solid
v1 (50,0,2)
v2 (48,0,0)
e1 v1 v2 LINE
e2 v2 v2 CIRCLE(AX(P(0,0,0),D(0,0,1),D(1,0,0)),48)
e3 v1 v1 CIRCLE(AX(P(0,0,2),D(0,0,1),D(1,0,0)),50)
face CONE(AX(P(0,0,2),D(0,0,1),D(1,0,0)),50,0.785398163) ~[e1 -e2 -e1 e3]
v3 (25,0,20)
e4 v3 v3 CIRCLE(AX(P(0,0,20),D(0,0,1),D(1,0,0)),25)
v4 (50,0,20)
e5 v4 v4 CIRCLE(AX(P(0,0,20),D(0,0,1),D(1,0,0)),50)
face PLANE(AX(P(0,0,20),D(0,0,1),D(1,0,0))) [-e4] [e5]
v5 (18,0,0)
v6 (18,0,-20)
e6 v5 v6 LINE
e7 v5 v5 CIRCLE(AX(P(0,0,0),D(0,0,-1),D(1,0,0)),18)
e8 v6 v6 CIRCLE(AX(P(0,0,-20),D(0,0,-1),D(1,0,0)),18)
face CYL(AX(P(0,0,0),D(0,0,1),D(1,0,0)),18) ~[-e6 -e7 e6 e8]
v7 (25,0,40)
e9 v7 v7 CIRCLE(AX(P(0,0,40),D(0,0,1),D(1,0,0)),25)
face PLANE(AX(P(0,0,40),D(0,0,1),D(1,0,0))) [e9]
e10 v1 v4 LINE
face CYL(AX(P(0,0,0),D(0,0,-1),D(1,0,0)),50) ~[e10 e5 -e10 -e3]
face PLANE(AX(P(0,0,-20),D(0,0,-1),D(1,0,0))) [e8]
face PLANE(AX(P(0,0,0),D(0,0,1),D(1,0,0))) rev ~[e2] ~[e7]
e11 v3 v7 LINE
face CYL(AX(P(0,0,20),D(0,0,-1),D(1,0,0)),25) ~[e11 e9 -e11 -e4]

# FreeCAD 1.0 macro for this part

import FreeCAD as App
import Part
import Sketcher

V = App.Vector
Q = App.Units.Quantity


def edges_at(feature, points):
    """Names of the edges that pass closest to the given points."""
    edges = feature.Shape.Edges
    near = lambda p: min(range(len(edges)), key=lambda i: edges[i].distToShape(Part.Vertex(*p))[0])
    return sorted({f"Edge{near(p) + 1}" for p in points})

doc = App.newDocument("Part")
body = doc.addObject("PartDesign::Body", "Body")

sketch1 = body.newObject("Sketcher::SketchObject", "Sketch")
sketch1.AttachmentSupport = (doc.getObject("XY_Plane"), [""])
sketch1.MapMode = "FlatFace"
sketch1.addGeometry(Part.Circle(V(0, 0, 0), V(0, 0, 1), 50), False)
sketch1.addConstraint([
    Sketcher.Constraint("Coincident", 0, 3, -1, 1),
    Sketcher.Constraint("Diameter", 0, Q("100 mm")),
])
pad1 = body.newObject("PartDesign::Pad", "Pad")
pad1.Profile = sketch1
pad1.Length = 20
doc.recompute()

chamfer = body.newObject("PartDesign::Chamfer", "Chamfer")
chamfer.Base = (pad1, edges_at(pad1, [(-50, 0, 0)]))
chamfer.Size = 2

sketch2 = body.newObject("Sketcher::SketchObject", "Sketch001")
sketch2.AttachmentSupport = (doc.getObject("XY_Plane"), [""])
sketch2.MapMode = "FlatFace"
sketch2.addGeometry(Part.Circle(V(0, 0, 0), V(0, 0, 1), 18), False)
sketch2.addConstraint([
    Sketcher.Constraint("Coincident", 0, 3, -1, 1),
    Sketcher.Constraint("Diameter", 0, Q("36 mm")),
])
pad2 = body.newObject("PartDesign::Pad", "Pad001")
pad2.Profile = sketch2
pad2.Length = 20
pad2.Reversed = True

sketch3 = body.newObject("Sketcher::SketchObject", "Sketch002")
sketch3.AttachmentSupport = (doc.getObject("XY_Plane"), [""])
sketch3.MapMode = "FlatFace"
sketch3.AttachmentOffset = App.Placement(V(0, 0, 20), App.Rotation())
sketch3.addGeometry(Part.Circle(V(0, 0, 0), V(0, 0, 1), 25), False)
sketch3.addConstraint([
    Sketcher.Constraint("Coincident", 0, 3, -1, 1),
    Sketcher.Constraint("Diameter", 0, Q("50 mm")),
])
pad3 = body.newObject("PartDesign::Pad", "Pad002")
pad3.Profile = sketch3
pad3.Length = 20

doc.recompute()
